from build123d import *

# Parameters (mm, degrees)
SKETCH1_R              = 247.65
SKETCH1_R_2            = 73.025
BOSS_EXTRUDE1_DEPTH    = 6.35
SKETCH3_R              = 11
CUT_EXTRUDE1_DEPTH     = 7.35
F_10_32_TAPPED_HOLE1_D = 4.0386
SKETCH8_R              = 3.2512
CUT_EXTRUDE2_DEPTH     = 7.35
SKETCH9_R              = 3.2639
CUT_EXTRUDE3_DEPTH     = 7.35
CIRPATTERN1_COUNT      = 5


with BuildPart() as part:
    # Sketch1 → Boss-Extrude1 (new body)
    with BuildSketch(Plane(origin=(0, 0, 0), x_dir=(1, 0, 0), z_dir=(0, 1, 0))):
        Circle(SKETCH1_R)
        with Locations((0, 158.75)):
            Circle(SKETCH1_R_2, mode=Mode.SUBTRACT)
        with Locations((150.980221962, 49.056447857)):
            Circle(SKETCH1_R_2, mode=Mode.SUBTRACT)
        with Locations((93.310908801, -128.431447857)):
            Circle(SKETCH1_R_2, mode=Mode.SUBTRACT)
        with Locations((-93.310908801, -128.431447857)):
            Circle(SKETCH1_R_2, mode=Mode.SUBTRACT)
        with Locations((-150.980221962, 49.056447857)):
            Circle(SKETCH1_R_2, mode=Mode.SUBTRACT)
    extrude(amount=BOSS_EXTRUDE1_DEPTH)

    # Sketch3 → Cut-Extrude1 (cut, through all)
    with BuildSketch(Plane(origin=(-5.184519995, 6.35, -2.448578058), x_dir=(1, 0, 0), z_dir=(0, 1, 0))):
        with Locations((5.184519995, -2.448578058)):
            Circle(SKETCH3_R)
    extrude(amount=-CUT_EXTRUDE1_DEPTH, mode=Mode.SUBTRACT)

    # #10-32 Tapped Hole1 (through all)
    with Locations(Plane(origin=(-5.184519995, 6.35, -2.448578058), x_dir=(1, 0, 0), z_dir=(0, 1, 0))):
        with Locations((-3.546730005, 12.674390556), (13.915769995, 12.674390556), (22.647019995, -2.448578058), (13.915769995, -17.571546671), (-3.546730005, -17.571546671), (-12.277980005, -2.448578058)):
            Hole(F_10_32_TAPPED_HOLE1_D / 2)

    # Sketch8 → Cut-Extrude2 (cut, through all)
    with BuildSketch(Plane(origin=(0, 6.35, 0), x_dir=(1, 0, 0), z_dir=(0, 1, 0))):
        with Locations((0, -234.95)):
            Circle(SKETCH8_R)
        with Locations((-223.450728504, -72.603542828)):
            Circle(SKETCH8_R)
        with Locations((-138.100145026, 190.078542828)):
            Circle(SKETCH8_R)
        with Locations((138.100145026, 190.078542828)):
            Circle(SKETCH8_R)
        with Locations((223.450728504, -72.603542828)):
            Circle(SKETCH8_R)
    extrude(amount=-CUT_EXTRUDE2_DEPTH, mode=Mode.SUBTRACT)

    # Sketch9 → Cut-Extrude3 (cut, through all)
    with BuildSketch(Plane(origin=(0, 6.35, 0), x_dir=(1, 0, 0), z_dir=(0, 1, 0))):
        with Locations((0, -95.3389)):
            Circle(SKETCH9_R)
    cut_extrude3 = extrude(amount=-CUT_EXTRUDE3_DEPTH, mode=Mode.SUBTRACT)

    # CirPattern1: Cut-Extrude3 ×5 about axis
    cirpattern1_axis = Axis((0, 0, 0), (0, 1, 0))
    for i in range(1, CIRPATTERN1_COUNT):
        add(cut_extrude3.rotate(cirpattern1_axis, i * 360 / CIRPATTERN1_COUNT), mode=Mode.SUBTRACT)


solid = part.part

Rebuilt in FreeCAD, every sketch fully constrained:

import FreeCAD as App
import Part
import Sketcher
from FreeCAD import Vector
Q = App.Units.Quantity

doc = App.newDocument("Part")
body = doc.addObject("PartDesign::Body", "Body")

sketch1 = body.newObject("Sketcher::SketchObject", "Sketch")
sketch1.AttachmentSupport = (doc.getObject("XZ_Plane"), [""])
sketch1.MapMode = "FlatFace"
sketch1.addGeometry([
    Part.Circle(Vector(0, 0, 0), Vector(0, 0, 1), 247.65),
    Part.Circle(Vector(-93.310909, 128.431448, 0), Vector(0, 0, 1), 73.025),
    Part.Circle(Vector(93.310909, 128.431448, 0), Vector(0, 0, 1), 73.025),
    Part.Circle(Vector(-150.980222, -49.056448, 0), Vector(0, 0, 1), 73.025),
    Part.Circle(Vector(0, -158.75, 0), Vector(0, 0, 1), 73.025),
    Part.Circle(Vector(150.980222, -49.056448, 0), Vector(0, 0, 1), 73.025),
], False)
sketch1.addConstraint([
    Sketcher.Constraint("Coincident", 0, 3, -1, 1),
    Sketcher.Constraint("Equal", 1, 2),
    Sketcher.Constraint("Equal", 2, 3),
    Sketcher.Constraint("Equal", 3, 4),
    Sketcher.Constraint("Equal", 4, 5),
    Sketcher.Constraint("Symmetric", 1, 3, 2, 3, -2),
    Sketcher.Constraint("Symmetric", 3, 3, 5, 3, -2),
    Sketcher.Constraint("PointOnObject", 4, 3, -2),
    Sketcher.Constraint("Diameter", 0, Q("19.5 in")),
    Sketcher.Constraint("Diameter", 1, Q("5.75 in")),
    Sketcher.Constraint("DistanceY", 4, 3, -1, 1, Q("6.25 in")),
    Sketcher.Constraint("DistanceX", 1, 3, -1, 1, Q("93.310909 mm")),
    Sketcher.Constraint("DistanceX", 3, 3, -1, 1, Q("150.980222 mm")),
    Sketcher.Constraint("DistanceY", -1, 1, 1, 3, Q("128.431448 mm")),
    Sketcher.Constraint("DistanceY", 3, 3, -1, 1, Q("49.056448 mm")),
])
pad1 = body.newObject("PartDesign::Pad", "Pad")
pad1.Profile = sketch1
pad1.Length = Q("0.25 in")
pad1.Reversed = True

sketch2 = body.newObject("Sketcher::SketchObject", "Sketch001")
sketch2.AttachmentSupport = (doc.getObject("XZ_Plane"), [""])
sketch2.MapMode = "FlatFace"
sketch2.AttachmentOffset = App.Placement(Vector(0, 0, -0.25 * 25.4), App.Rotation())
sketch2.addGeometry(Part.Circle(Vector(0, 0, 0), Vector(0, 0, 1), 11), False)
sketch2.addConstraint([
    Sketcher.Constraint("Coincident", 0, 3, -1, 1),
    Sketcher.Constraint("Diameter", 0, Q("22 mm")),
])
pocket1 = body.newObject("PartDesign::Pocket", "Pocket")
pocket1.Profile = sketch2
pocket1.Type = "ThroughAll"
pocket1.Reversed = True

sketch3 = body.newObject("Sketcher::SketchObject", "Sketch002")
sketch3.AttachmentSupport = (doc.getObject("XZ_Plane"), [""])
sketch3.MapMode = "FlatFace"
sketch3.AttachmentOffset = App.Placement(Vector(0, 0, -0.25 * 25.4), App.Rotation())
sketch3.addGeometry([
    Part.Circle(Vector(-8.73125, -15.122969, 0), Vector(0, 0, 1), 2.0193),
    Part.Circle(Vector(8.73125, -15.122969, 0), Vector(0, 0, 1), 2.0193),
    Part.Circle(Vector(17.4625, 0, 0), Vector(0, 0, 1), 2.0193),
    Part.Circle(Vector(8.73125, 15.122969, 0), Vector(0, 0, 1), 2.0193),
    Part.Circle(Vector(-8.73125, 15.122969, 0), Vector(0, 0, 1), 2.0193),
    Part.Circle(Vector(-17.4625, 0, 0), Vector(0, 0, 1), 2.0193),
], False)
sketch3.addConstraint([
    Sketcher.Constraint("Equal", 0, 1),
    Sketcher.Constraint("Equal", 1, 2),
    Sketcher.Constraint("Equal", 2, 3),
    Sketcher.Constraint("Equal", 3, 4),
    Sketcher.Constraint("Equal", 4, 5),
    Sketcher.Constraint("Symmetric", 0, 3, 3, 3, -1, 1),
    Sketcher.Constraint("Symmetric", 1, 3, 4, 3, -1, 1),
    Sketcher.Constraint("Symmetric", 2, 3, 5, 3, -1, 1),
    Sketcher.Constraint("Symmetric", 0, 3, 1, 3, -2),
    Sketcher.Constraint("PointOnObject", 2, 3, -1),
    Sketcher.Constraint("Diameter", 0, Q("0.159 in")),
    Sketcher.Constraint("DistanceX", 0, 3, -1, 1, Q("0.34375 in")),
    Sketcher.Constraint("DistanceX", -1, 1, 2, 3, Q("0.6875 in")),
    Sketcher.Constraint("DistanceY", 0, 3, -1, 1, Q("15.122969 mm")),
])
doc.recompute()
hole = body.newObject("PartDesign::Hole", "Hole")
hole.Profile = sketch3
hole.ThreadType = "None"
hole.Diameter = Q("0.159 in")
hole.DepthType = "ThroughAll"
hole.Reversed = True

sketch4 = body.newObject("Sketcher::SketchObject", "Sketch003")
sketch4.AttachmentSupport = (doc.getObject("XZ_Plane"), [""])
sketch4.MapMode = "FlatFace"
sketch4.AttachmentOffset = App.Placement(Vector(0, 0, -0.25 * 25.4), App.Rotation())
sketch4.addGeometry([
    Part.Circle(Vector(0, 234.95, 0), Vector(0, 0, 1), 3.2512),
    Part.Circle(Vector(-223.450729, 72.603543, 0), Vector(0, 0, 1), 3.2512),
    Part.Circle(Vector(-138.100145, -190.078543, 0), Vector(0, 0, 1), 3.2512),
    Part.Circle(Vector(138.100145, -190.078543, 0), Vector(0, 0, 1), 3.2512),
    Part.Circle(Vector(223.450729, 72.603543, 0), Vector(0, 0, 1), 3.2512),
], False)
sketch4.addConstraint([
    Sketcher.Constraint("Equal", 0, 1),
    Sketcher.Constraint("Equal", 1, 2),
    Sketcher.Constraint("Equal", 2, 3),
    Sketcher.Constraint("Equal", 3, 4),
    Sketcher.Constraint("Symmetric", 2, 3, 3, 3, -2),
    Sketcher.Constraint("Symmetric", 1, 3, 4, 3, -2),
    Sketcher.Constraint("PointOnObject", 0, 3, -2),
    Sketcher.Constraint("Diameter", 0, Q("0.256 in")),
    Sketcher.Constraint("DistanceY", -1, 1, 0, 3, Q("9.25 in")),
    Sketcher.Constraint("DistanceX", 1, 3, -1, 1, Q("223.450729 mm")),
    Sketcher.Constraint("DistanceX", 2, 3, 3, 3, Q("276.20029 mm")),
    Sketcher.Constraint("DistanceY", -1, 1, 1, 3, Q("72.603543 mm")),
    Sketcher.Constraint("DistanceY", 2, 3, -1, 1, Q("190.078543 mm")),
])
pocket2 = body.newObject("PartDesign::Pocket", "Pocket001")
pocket2.Profile = sketch4
pocket2.Type = "ThroughAll"
pocket2.Reversed = True

sketch5 = body.newObject("Sketcher::SketchObject", "Sketch004")
sketch5.AttachmentSupport = (doc.getObject("XZ_Plane"), [""])
sketch5.MapMode = "FlatFace"
sketch5.AttachmentOffset = App.Placement(Vector(0, 0, -0.25 * 25.4), App.Rotation())
sketch5.addGeometry(Part.Circle(Vector(0, 95.3389, 0), Vector(0, 0, 1), 3.2639), False)
sketch5.addConstraint([
    Sketcher.Constraint("PointOnObject", 0, 3, -2),
    Sketcher.Constraint("Diameter", 0, Q("0.257 in")),
    Sketcher.Constraint("DistanceY", -1, 1, 0, 3, Q("3.7535 in")),
])
pocket3 = body.newObject("PartDesign::Pocket", "Pocket002")
pocket3.Profile = sketch5
pocket3.Type = "ThroughAll"
pocket3.Reversed = True
doc.recompute()

polarpattern = body.newObject("PartDesign::PolarPattern", "PolarPattern")
polarpattern.Originals = [pocket3]
polarpattern.Axis = (doc.getObject("Y_Axis"), [""])
polarpattern.Angle = 360
polarpattern.Occurrences = 5
body.Tip = polarpattern

doc.recompute()
